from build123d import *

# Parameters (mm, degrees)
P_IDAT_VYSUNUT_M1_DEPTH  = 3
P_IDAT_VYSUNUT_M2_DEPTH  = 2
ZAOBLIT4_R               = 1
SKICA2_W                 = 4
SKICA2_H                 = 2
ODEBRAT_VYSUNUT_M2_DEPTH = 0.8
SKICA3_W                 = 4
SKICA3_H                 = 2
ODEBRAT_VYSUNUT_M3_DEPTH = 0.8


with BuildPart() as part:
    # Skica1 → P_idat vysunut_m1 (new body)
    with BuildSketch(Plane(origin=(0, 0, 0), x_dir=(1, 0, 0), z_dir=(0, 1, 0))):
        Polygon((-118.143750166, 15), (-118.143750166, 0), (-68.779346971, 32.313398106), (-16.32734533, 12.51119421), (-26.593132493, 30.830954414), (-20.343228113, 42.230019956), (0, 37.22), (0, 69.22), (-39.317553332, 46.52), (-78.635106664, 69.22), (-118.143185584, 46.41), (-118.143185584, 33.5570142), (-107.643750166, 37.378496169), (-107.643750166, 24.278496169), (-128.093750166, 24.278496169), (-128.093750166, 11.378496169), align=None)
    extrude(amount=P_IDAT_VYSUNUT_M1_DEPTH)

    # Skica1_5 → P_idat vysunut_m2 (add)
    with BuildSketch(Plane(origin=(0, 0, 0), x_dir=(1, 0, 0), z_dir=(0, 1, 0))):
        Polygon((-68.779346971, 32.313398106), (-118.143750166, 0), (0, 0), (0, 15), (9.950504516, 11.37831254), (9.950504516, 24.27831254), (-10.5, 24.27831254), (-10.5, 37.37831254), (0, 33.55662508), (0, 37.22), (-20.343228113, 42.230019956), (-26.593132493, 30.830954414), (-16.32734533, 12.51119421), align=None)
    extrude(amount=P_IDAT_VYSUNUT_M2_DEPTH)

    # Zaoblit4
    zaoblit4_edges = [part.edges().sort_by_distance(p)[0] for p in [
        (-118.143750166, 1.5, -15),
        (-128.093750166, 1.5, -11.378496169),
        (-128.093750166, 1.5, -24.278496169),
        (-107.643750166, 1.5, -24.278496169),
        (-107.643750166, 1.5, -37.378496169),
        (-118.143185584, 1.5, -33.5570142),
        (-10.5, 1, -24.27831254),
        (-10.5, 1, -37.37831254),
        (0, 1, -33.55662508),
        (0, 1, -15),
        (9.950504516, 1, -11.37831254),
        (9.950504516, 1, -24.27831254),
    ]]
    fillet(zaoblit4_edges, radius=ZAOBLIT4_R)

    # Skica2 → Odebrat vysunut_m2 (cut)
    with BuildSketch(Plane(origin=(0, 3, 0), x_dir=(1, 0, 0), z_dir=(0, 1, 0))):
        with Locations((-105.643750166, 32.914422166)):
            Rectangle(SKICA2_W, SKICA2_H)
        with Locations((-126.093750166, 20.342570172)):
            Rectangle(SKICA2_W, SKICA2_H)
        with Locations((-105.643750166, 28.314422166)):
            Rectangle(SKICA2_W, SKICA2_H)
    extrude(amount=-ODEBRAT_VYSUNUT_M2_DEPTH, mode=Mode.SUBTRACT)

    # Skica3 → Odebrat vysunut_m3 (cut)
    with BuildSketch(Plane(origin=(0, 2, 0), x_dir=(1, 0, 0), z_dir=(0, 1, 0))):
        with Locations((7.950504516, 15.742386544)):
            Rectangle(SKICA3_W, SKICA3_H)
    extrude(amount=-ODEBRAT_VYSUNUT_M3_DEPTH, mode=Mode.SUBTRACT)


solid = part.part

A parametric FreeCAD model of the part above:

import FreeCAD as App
import Part
import Sketcher
Q = App.Units.Quantity


def edges_at(feature, points):
    """Names of the edges that pass closest to the given points."""
    edges = feature.Shape.Edges
    near = lambda p: min(range(len(edges)), key=lambda i: edges[i].distToShape(Part.Vertex(*p))[0])
    return sorted({f"Edge{near(p) + 1}" for p in points})

doc = App.newDocument("Part")
body = doc.addObject("PartDesign::Body", "Body")

# Sketch on XZ plane
sketch1 = body.newObject("Sketcher::SketchObject", "Sketch")
sketch1.AttachmentSupport = (doc.getObject("XZ_Plane"), [""])
sketch1.MapMode = "FlatFace"
sketch1.addGeometry([
    Part.LineSegment(App.Vector(-118, -15, 0), App.Vector(-118, 0, 0)),  # 0
    Part.LineSegment(App.Vector(-118, 0, 0), App.Vector(-69, -32, 0)),  # 1
    Part.LineSegment(App.Vector(-69, -32, 0), App.Vector(-16, -13, 0)),  # 2
    Part.LineSegment(App.Vector(-16, -13, 0), App.Vector(-27, -31, 0)),  # 3
    Part.LineSegment(App.Vector(-27, -31, 0), App.Vector(-20, -42, 0)),  # 4
    Part.LineSegment(App.Vector(-20, -42, 0), App.Vector(0, -37, 0)),  # 5
    Part.LineSegment(App.Vector(0, -37, 0), App.Vector(0, -69, 0)),  # 6
    Part.LineSegment(App.Vector(0, -69, 0), App.Vector(-39, -47, 0)),  # 7
    Part.LineSegment(App.Vector(-39, -47, 0), App.Vector(-79, -69, 0)),  # 8
    Part.LineSegment(App.Vector(-79, -69, 0), App.Vector(-118, -46, 0)),  # 9
    Part.LineSegment(App.Vector(-118, -46, 0), App.Vector(-118, -34, 0)),  # 10
    Part.LineSegment(App.Vector(-118, -34, 0), App.Vector(-108, -37, 0)),  # 11
    Part.LineSegment(App.Vector(-108, -37, 0), App.Vector(-108, -24, 0)),  # 12
    Part.LineSegment(App.Vector(-108, -24, 0), App.Vector(-128, -24, 0)),  # 13
    Part.LineSegment(App.Vector(-128, -24, 0), App.Vector(-128, -11, 0)),  # 14
    Part.LineSegment(App.Vector(-128, -11, 0), App.Vector(-118, -15, 0)),  # 15
], False)
sketch1.addConstraint([
    Sketcher.Constraint("Coincident", 0, 2, 1, 1),
    Sketcher.Constraint("Coincident", 1, 2, 2, 1),
    Sketcher.Constraint("Coincident", 2, 2, 3, 1),
    Sketcher.Constraint("Coincident", 3, 2, 4, 1),
    Sketcher.Constraint("Coincident", 4, 2, 5, 1),
    Sketcher.Constraint("Coincident", 5, 2, 6, 1),
    Sketcher.Constraint("Coincident", 6, 2, 7, 1),
    Sketcher.Constraint("Coincident", 7, 2, 8, 1),
    Sketcher.Constraint("Coincident", 8, 2, 9, 1),
    Sketcher.Constraint("Coincident", 9, 2, 10, 1),
    Sketcher.Constraint("Coincident", 10, 2, 11, 1),
    Sketcher.Constraint("Coincident", 11, 2, 12, 1),
    Sketcher.Constraint("Coincident", 12, 2, 13, 1),
    Sketcher.Constraint("Coincident", 13, 2, 14, 1),
    Sketcher.Constraint("Coincident", 14, 2, 15, 1),
    Sketcher.Constraint("Coincident", 15, 2, 0, 1),
    Sketcher.Constraint("Vertical", 0),
    Sketcher.Constraint("Vertical", 6),
    Sketcher.Constraint("Vertical", 10),
    Sketcher.Constraint("Vertical", 12),
    Sketcher.Constraint("Horizontal", 13),
    Sketcher.Constraint("Vertical", 14),
    Sketcher.Constraint("PointOnObject", 0, 2, -1),
    Sketcher.Constraint("PointOnObject", 5, 2, -2),
    Sketcher.Constraint("Parallel", 7, 9),
    Sketcher.Constraint("Parallel", 11, 15),
    Sketcher.Constraint("Horizontal", 6, 2, 8, 2),
    Sketcher.Constraint("Equal", 7, 8),
    Sketcher.Constraint("DistanceY", 0, 1, 0, 2, 15.0),
    Sketcher.Constraint("DistanceY", 6, 2, 6, 1, 32.0),
    Sketcher.Constraint("Angle", 7, Q("150 deg")),
    Sketcher.Constraint("Angle", 11, Q("-20 deg")),
    Sketcher.Constraint("Distance", 1, 59.0),
    Sketcher.Constraint("Distance", 3, 21.0),
    Sketcher.Constraint("Distance", 4, 13.0),
    Sketcher.Constraint("DistanceY", 12, 1, 12, 2, 13.1),
    Sketcher.Constraint("DistanceY", 14, 1, 14, 2, 12.9),
    Sketcher.Constraint("Distance", 7, 45.4),
    Sketcher.Constraint("DistanceX", 13, 2, 13, 1, 20.45),
    Sketcher.Constraint("DistanceX", 0, 2, 11, 2, 10.5),
    Sketcher.Constraint("Distance", 9, 45.62),
    Sketcher.Constraint("DistanceY", 5, 2, -1, 1, 37.22),
    Sketcher.Constraint("DistanceX", 1, 2, 2, 2, 52.452002),
    Sketcher.Constraint("DistanceY", 1, 2, -1, 1, 32.313398),
    Sketcher.Constraint("DistanceY", 10, 1, 10, 2, 12.852986),
    Sketcher.Constraint("DistanceX", 4, 2, -1, 1, 20.343228),
    Sketcher.Constraint("DistanceY", 4, 2, -1, 1, 42.23002),
    Sketcher.Constraint("DistanceY", 3, 2, 2, 2, 18.31976),
])
pad1 = body.newObject("PartDesign::Pad", "Pad")
pad1.Profile = sketch1
pad1.Length = 3
pad1.Reversed = True

# Sketch on XZ plane
sketch2 = body.newObject("Sketcher::SketchObject", "Sketch001")
sketch2.AttachmentSupport = (doc.getObject("XZ_Plane"), [""])
sketch2.MapMode = "FlatFace"
sketch2.addGeometry([
    Part.LineSegment(App.Vector(-68.8, -32.3, 0), App.Vector(-118.1, 0, 0)),  # 0
    Part.LineSegment(App.Vector(-118.1, 0, 0), App.Vector(0, 0, 0)),  # 1
    Part.LineSegment(App.Vector(0, 0, 0), App.Vector(0, -15, 0)),  # 2
    Part.LineSegment(App.Vector(0, -15, 0), App.Vector(10, -11.4, 0)),  # 3
    Part.LineSegment(App.Vector(10, -11.4, 0), App.Vector(10, -24.3, 0)),  # 4
    Part.LineSegment(App.Vector(10, -24.3, 0), App.Vector(-10.5, -24.3, 0)),  # 5
    Part.LineSegment(App.Vector(-10.5, -24.3, 0), App.Vector(-10.5, -37.4, 0)),  # 6
    Part.LineSegment(App.Vector(-10.5, -37.4, 0), App.Vector(0, -33.6, 0)),  # 7
    Part.LineSegment(App.Vector(0, -33.6, 0), App.Vector(0, -37.2, 0)),  # 8
    Part.LineSegment(App.Vector(0, -37.2, 0), App.Vector(-20.3, -42.2, 0)),  # 9
    Part.LineSegment(App.Vector(-20.3, -42.2, 0), App.Vector(-26.6, -30.8, 0)),  # 10
    Part.LineSegment(App.Vector(-26.6, -30.8, 0), App.Vector(-16.3, -12.5, 0)),  # 11
    Part.LineSegment(App.Vector(-16.3, -12.5, 0), App.Vector(-68.8, -32.3, 0)),  # 12
], False)
sketch2.addConstraint([
    Sketcher.Constraint("Coincident", 0, 2, 1, 1),
    Sketcher.Constraint("Coincident", 1, 2, 2, 1),
    Sketcher.Constraint("Coincident", 2, 2, 3, 1),
    Sketcher.Constraint("Coincident", 3, 2, 4, 1),
    Sketcher.Constraint("Coincident", 4, 2, 5, 1),
    Sketcher.Constraint("Coincident", 5, 2, 6, 1),
    Sketcher.Constraint("Coincident", 6, 2, 7, 1),
    Sketcher.Constraint("Coincident", 7, 2, 8, 1),
    Sketcher.Constraint("Coincident", 8, 2, 9, 1),
    Sketcher.Constraint("Coincident", 9, 2, 10, 1),
    Sketcher.Constraint("Coincident", 10, 2, 11, 1),
    Sketcher.Constraint("Coincident", 11, 2, 12, 1),
    Sketcher.Constraint("Coincident", 12, 2, 0, 1),
    Sketcher.Constraint("Horizontal", 1),
    Sketcher.Constraint("Vertical", 2),
    Sketcher.Constraint("Vertical", 4),
    Sketcher.Constraint("Horizontal", 5),
    Sketcher.Constraint("Vertical", 6),
    Sketcher.Constraint("Vertical", 8),
    Sketcher.Constraint("Coincident", 1, 2, -1, 1),
    Sketcher.Constraint("PointOnObject", 7, 2, -2),
    Sketcher.Constraint("Parallel", 3, 7),
    Sketcher.Constraint("DistanceY", 2, 2, 2, 1, 15.0),
    Sketcher.Constraint("Angle", 3, Q("20 deg")),
    Sketcher.Constraint("Distance", 0, 59.0),
    Sketcher.Constraint("Distance", 10, 13.0),
    Sketcher.Constraint("Distance", 11, 21.0),
    Sketcher.Constraint("DistanceY", 4, 2, 4, 1, 12.9),
    Sketcher.Constraint("DistanceY", 6, 2, 6, 1, 13.1),
    Sketcher.Constraint("DistanceX", 5, 2, -1, 1, 10.5),
    Sketcher.Constraint("DistanceY", 8, 2, -1, 1, 37.22),
    Sketcher.Constraint("DistanceX", 12, 2, 11, 2, 52.452002),
    Sketcher.Constraint("DistanceX", 1, 1, 1, 2, 118.14375),
    Sketcher.Constraint("DistanceY", 12, 2, -1, 1, 32.313398),
    Sketcher.Constraint("DistanceX", 5, 2, 5, 1, 20.450505),
    Sketcher.Constraint("DistanceX", 9, 2, -1, 1, 20.343228),
    Sketcher.Constraint("DistanceY", 9, 2, -1, 1, 42.23002),
    Sketcher.Constraint("DistanceY", 6, 2, 10, 2, 6.547358),
])
pad2 = body.newObject("PartDesign::Pad", "Pad001")
pad2.Profile = sketch2
pad2.Length = 2
pad2.Reversed = True
doc.recompute()

fillet = body.newObject("PartDesign::Fillet", "Fillet")
fillet.Base = (pad2, edges_at(pad2, [
    (-118.144, 1.5, -15),
    (-128.094, 1.5, -11.378),
    (-128.094, 1.5, -24.278),
    (-107.644, 1.5, -24.278),
    (-107.644, 1.5, -37.378),
    (-118.143, 1.5, -33.557),
    (-10.5, 1, -24.278),
    (-10.5, 1, -37.378),
    (0, 1, -33.557),
    (0, 1, -15),
    (9.951, 1, -11.378),
    (9.951, 1, -24.278),
]))
fillet.Radius = 1

# Sketch on XZ plane
sketch3 = body.newObject("Sketcher::SketchObject", "Sketch002")
sketch3.AttachmentSupport = (doc.getObject("XZ_Plane"), [""])
sketch3.MapMode = "FlatFace"
sketch3.AttachmentOffset = App.Placement(App.Vector(0, 0, -3), App.Rotation())
sketch3.addGeometry([
    Part.LineSegment(App.Vector(-107.6, -33.9, 0), App.Vector(-107.6, -31.9, 0)),  # 0
    Part.LineSegment(App.Vector(-107.6, -31.9, 0), App.Vector(-103.6, -31.9, 0)),  # 1
    Part.LineSegment(App.Vector(-103.6, -31.9, 0), App.Vector(-103.6, -33.9, 0)),  # 2
    Part.LineSegment(App.Vector(-103.6, -33.9, 0), App.Vector(-107.6, -33.9, 0)),  # 3
    Part.LineSegment(App.Vector(-128.1, -21.3, 0), App.Vector(-128.1, -19.3, 0)),  # 4
    Part.LineSegment(App.Vector(-128.1, -19.3, 0), App.Vector(-124.1, -19.3, 0)),  # 5
    Part.LineSegment(App.Vector(-124.1, -19.3, 0), App.Vector(-124.1, -21.3, 0)),  # 6
    Part.LineSegment(App.Vector(-124.1, -21.3, 0), App.Vector(-128.1, -21.3, 0)),  # 7
    Part.LineSegment(App.Vector(-107.6, -29.3, 0), App.Vector(-107.6, -27.3, 0)),  # 8
    Part.LineSegment(App.Vector(-107.6, -27.3, 0), App.Vector(-103.6, -27.3, 0)),  # 9
    Part.LineSegment(App.Vector(-103.6, -27.3, 0), App.Vector(-103.6, -29.3, 0)),  # 10
    Part.LineSegment(App.Vector(-103.6, -29.3, 0), App.Vector(-107.6, -29.3, 0)),  # 11
], False)
sketch3.addConstraint([
    Sketcher.Constraint("Coincident", 0, 2, 1, 1),
    Sketcher.Constraint("Coincident", 1, 2, 2, 1),
    Sketcher.Constraint("Coincident", 2, 2, 3, 1),
    Sketcher.Constraint("Coincident", 3, 2, 0, 1),
    Sketcher.Constraint("Coincident", 4, 2, 5, 1),
    Sketcher.Constraint("Coincident", 5, 2, 6, 1),
    Sketcher.Constraint("Coincident", 6, 2, 7, 1),
    Sketcher.Constraint("Coincident", 7, 2, 4, 1),
    Sketcher.Constraint("Coincident", 8, 2, 9, 1),
    Sketcher.Constraint("Coincident", 9, 2, 10, 1),
    Sketcher.Constraint("Coincident", 10, 2, 11, 1),
    Sketcher.Constraint("Coincident", 11, 2, 8, 1),
    Sketcher.Constraint("Vertical", 0),
    Sketcher.Constraint("Horizontal", 1),
    Sketcher.Constraint("Vertical", 2),
    Sketcher.Constraint("Horizontal", 3),
    Sketcher.Constraint("Vertical", 4),
    Sketcher.Constraint("Horizontal", 5),
    Sketcher.Constraint("Vertical", 6),
    Sketcher.Constraint("Horizontal", 7),
    Sketcher.Constraint("Vertical", 8),
    Sketcher.Constraint("Horizontal", 9),
    Sketcher.Constraint("Vertical", 10),
    Sketcher.Constraint("Horizontal", 11),
    Sketcher.Constraint("Vertical", 3, 2, 8, 2),
    Sketcher.Constraint("Vertical", 2, 2, 9, 2),
    Sketcher.Constraint("Equal", 3, 5),
    Sketcher.Constraint("Equal", 2, 4),
    Sketcher.Constraint("Equal", 6, 8),
    Sketcher.Constraint("DistanceX", 1, 1, 1, 2, 4.0),
    Sketcher.Constraint("DistanceY", 0, 1, 0, 2, 2.0),
    Sketcher.Constraint("DistanceY", 0, 2, 8, 2, 4.6),
    Sketcher.Constraint("DistanceX", 4, 2, 0, 2, 20.45),
    Sketcher.Constraint("DistanceX", 0, 2, -1, 1, 107.64375),
    Sketcher.Constraint("DistanceY", 4, 2, -1, 1, 19.34257),
    Sketcher.Constraint("DistanceY", 0, 2, 4, 2, 12.571852),
])
pocket1 = body.newObject("PartDesign::Pocket", "Pocket")
pocket1.Profile = sketch3
pocket1.Length = 0.8
pocket1.Reversed = True

# Sketch on XZ plane
sketch4 = body.newObject("Sketcher::SketchObject", "Sketch003")
sketch4.AttachmentSupport = (doc.getObject("XZ_Plane"), [""])
sketch4.MapMode = "FlatFace"
sketch4.AttachmentOffset = App.Placement(App.Vector(0, 0, -2), App.Rotation())
sketch4.addGeometry([
    Part.LineSegment(App.Vector(6, -16.7, 0), App.Vector(6, -14.7, 0)),
    Part.LineSegment(App.Vector(6, -14.7, 0), App.Vector(10, -14.7, 0)),
    Part.LineSegment(App.Vector(10, -14.7, 0), App.Vector(10, -16.7, 0)),
    Part.LineSegment(App.Vector(10, -16.7, 0), App.Vector(6, -16.7, 0)),
], False)
sketch4.addConstraint([
    Sketcher.Constraint("Coincident", 0, 2, 1, 1),
    Sketcher.Constraint("Coincident", 1, 2, 2, 1),
    Sketcher.Constraint("Coincident", 2, 2, 3, 1),
    Sketcher.Constraint("Coincident", 3, 2, 0, 1),
    Sketcher.Constraint("Vertical", 0),
    Sketcher.Constraint("Horizontal", 1),
    Sketcher.Constraint("Vertical", 2),
    Sketcher.Constraint("Horizontal", 3),
    Sketcher.Constraint("DistanceX", 1, 1, 1, 2, 4.0),
    Sketcher.Constraint("DistanceY", 0, 1, 0, 2, 2.0),
    Sketcher.Constraint("DistanceX", -1, 1, 0, 2, 5.950505),
    Sketcher.Constraint("DistanceY", 0, 2, -1, 1, 14.742387),
])
pocket2 = body.newObject("PartDesign::Pocket", "Pocket001")
pocket2.Profile = sketch4
pocket2.Length = 0.8
pocket2.Reversed = True

doc.recompute()
